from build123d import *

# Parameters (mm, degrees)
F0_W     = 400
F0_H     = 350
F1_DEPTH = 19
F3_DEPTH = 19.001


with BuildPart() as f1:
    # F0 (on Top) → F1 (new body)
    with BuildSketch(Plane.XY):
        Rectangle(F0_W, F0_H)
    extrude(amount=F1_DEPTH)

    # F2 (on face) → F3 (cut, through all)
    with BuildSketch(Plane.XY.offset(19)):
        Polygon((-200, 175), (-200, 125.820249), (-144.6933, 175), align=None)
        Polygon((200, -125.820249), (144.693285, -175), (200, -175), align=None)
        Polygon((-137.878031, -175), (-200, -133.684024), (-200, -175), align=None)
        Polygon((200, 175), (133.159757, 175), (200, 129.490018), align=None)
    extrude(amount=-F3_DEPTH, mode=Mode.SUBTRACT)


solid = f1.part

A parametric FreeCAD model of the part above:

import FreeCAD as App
import Part
import Sketcher

V = App.Vector
Q = App.Units.Quantity

doc = App.newDocument("Part")
params = doc.addObject("Spreadsheet::Sheet", "Params")
for row, (alias, value) in enumerate([
    ("sketch1_width", "400 mm"),
    ("sketch1_height", "350 mm"),
    ("pad1_length", "19 mm"),
], start=1):
    params.set(f"A{row}", alias)
    params.set(f"B{row}", "=" + value)
    params.setAlias(f"B{row}", alias)

body = doc.addObject("PartDesign::Body", "Body")

# Sketch on XY plane
sketch1 = body.newObject("Sketcher::SketchObject", "Sketch")
sketch1.AttachmentSupport = (doc.getObject("XY_Plane"), [""])
sketch1.MapMode = "FlatFace"
sketch1.addGeometry(Part.LineSegment(V(-200, 175, 0), V(-200, -175, 0)), False)
sketch1.addGeometry(Part.LineSegment(V(-200, -175, 0), V(200, -175, 0)), False)
sketch1.addGeometry(Part.LineSegment(V(200, -175, 0), V(200, 175, 0)), False)
sketch1.addGeometry(Part.LineSegment(V(200, 175, 0), V(-200, 175, 0)), False)
sketch1.addConstraint(Sketcher.Constraint("Coincident", 0, 2, 1, 1))
sketch1.addConstraint(Sketcher.Constraint("Coincident", 1, 2, 2, 1))
sketch1.addConstraint(Sketcher.Constraint("Coincident", 2, 2, 3, 1))
sketch1.addConstraint(Sketcher.Constraint("Coincident", 3, 2, 0, 1))
sketch1.addConstraint(Sketcher.Constraint("Vertical", 0))
sketch1.addConstraint(Sketcher.Constraint("Horizontal", 1))
sketch1.addConstraint(Sketcher.Constraint("Vertical", 2))
sketch1.addConstraint(Sketcher.Constraint("Horizontal", 3))
sketch1.addConstraint(Sketcher.Constraint("Symmetric", 0, 2, 2, 2, -1, 1))
sketch1.addConstraint(Sketcher.Constraint("DistanceX", 1, 1, 1, 2, Q("400 mm")))
sketch1.addConstraint(Sketcher.Constraint("DistanceY", 0, 2, 0, 1, Q("350 mm")))
sketch1.setExpression("Constraints[9]", "Params.sketch1_width")
sketch1.setExpression("Constraints[10]", "Params.sketch1_height")
pad1 = body.newObject("PartDesign::Pad", "Pad")
pad1.Profile = sketch1
pad1.setExpression("Length", "Params.pad1_length")

# Sketch on XY plane
sketch2 = body.newObject("Sketcher::SketchObject", "Sketch001")
sketch2.AttachmentSupport = (doc.getObject("XY_Plane"), [""])
sketch2.MapMode = "FlatFace"
sketch2.AttachmentOffset = App.Placement(V(0, 0, 19), App.Rotation())
sketch2.addGeometry(Part.LineSegment(V(-200, 175, 0), V(-200, 126, 0)), False)
sketch2.addGeometry(Part.LineSegment(V(-200, 126, 0), V(-145, 175, 0)), False)
sketch2.addGeometry(Part.LineSegment(V(-145, 175, 0), V(-200, 175, 0)), False)
sketch2.addGeometry(Part.LineSegment(V(200, -126, 0), V(145, -175, 0)), False)
sketch2.addGeometry(Part.LineSegment(V(145, -175, 0), V(200, -175, 0)), False)
sketch2.addGeometry(Part.LineSegment(V(200, -175, 0), V(200, -126, 0)), False)
sketch2.addGeometry(Part.LineSegment(V(-138, -175, 0), V(-200, -134, 0)), False)
sketch2.addGeometry(Part.LineSegment(V(-200, -134, 0), V(-200, -175, 0)), False)
sketch2.addGeometry(Part.LineSegment(V(-200, -175, 0), V(-138, -175, 0)), False)
sketch2.addGeometry(Part.LineSegment(V(200, 175, 0), V(133, 175, 0)), False)
sketch2.addGeometry(Part.LineSegment(V(133, 175, 0), V(200, 129, 0)), False)
sketch2.addGeometry(Part.LineSegment(V(200, 129, 0), V(200, 175, 0)), False)
sketch2.addConstraint(Sketcher.Constraint("Coincident", 0, 2, 1, 1))
sketch2.addConstraint(Sketcher.Constraint("Coincident", 1, 2, 2, 1))
sketch2.addConstraint(Sketcher.Constraint("Coincident", 2, 2, 0, 1))
sketch2.addConstraint(Sketcher.Constraint("Coincident", 3, 2, 4, 1))
sketch2.addConstraint(Sketcher.Constraint("Coincident", 4, 2, 5, 1))
sketch2.addConstraint(Sketcher.Constraint("Coincident", 5, 2, 3, 1))
sketch2.addConstraint(Sketcher.Constraint("Coincident", 6, 2, 7, 1))
sketch2.addConstraint(Sketcher.Constraint("Coincident", 7, 2, 8, 1))
sketch2.addConstraint(Sketcher.Constraint("Coincident", 8, 2, 6, 1))
sketch2.addConstraint(Sketcher.Constraint("Coincident", 9, 2, 10, 1))
sketch2.addConstraint(Sketcher.Constraint("Coincident", 10, 2, 11, 1))
sketch2.addConstraint(Sketcher.Constraint("Coincident", 11, 2, 9, 1))
sketch2.addConstraint(Sketcher.Constraint("Vertical", 0))
sketch2.addConstraint(Sketcher.Constraint("Horizontal", 2))
sketch2.addConstraint(Sketcher.Constraint("Horizontal", 4))
sketch2.addConstraint(Sketcher.Constraint("Vertical", 5))
sketch2.addConstraint(Sketcher.Constraint("Vertical", 7))
sketch2.addConstraint(Sketcher.Constraint("Horizontal", 8))
sketch2.addConstraint(Sketcher.Constraint("Horizontal", 9))
sketch2.addConstraint(Sketcher.Constraint("Vertical", 11))
sketch2.addConstraint(Sketcher.Constraint("Symmetric", 2, 2, 4, 2, -1, 1))
sketch2.addConstraint(Sketcher.Constraint("Symmetric", 7, 2, 11, 2, -1, 1))
sketch2.addConstraint(Sketcher.Constraint("Symmetric", 4, 2, 7, 2, -2))
sketch2.addConstraint(Sketcher.Constraint("Parallel", 1, 3))
sketch2.addConstraint(Sketcher.Constraint("Equal", 0, 5))
sketch2.addConstraint(Sketcher.Constraint("DistanceX", 0, 2, -1, 1, Q("200 mm")))
sketch2.addConstraint(Sketcher.Constraint("DistanceY", -1, 1, 1, 2, Q("175 mm")))
sketch2.addConstraint(Sketcher.Constraint("DistanceX", 2, 2, 2, 1, Q("55.3067 mm")))
sketch2.addConstraint(Sketcher.Constraint("Distance", 10, Q("80.862702 mm")))
sketch2.addConstraint(Sketcher.Constraint("DistanceX", 8, 1, 8, 2, Q("62.121969 mm")))
sketch2.addConstraint(Sketcher.Constraint("DistanceY", 0, 2, 0, 1, Q("49.179751 mm")))
sketch2.addConstraint(Sketcher.Constraint("DistanceX", 9, 2, 9, 1, Q("66.840243 mm")))
sketch2.addConstraint(Sketcher.Constraint("DistanceY", 7, 2, 7, 1, Q("41.315976 mm")))
pocket1 = body.newObject("PartDesign::Pocket", "Pocket")
pocket1.Profile = sketch2
pocket1.Type = "ThroughAll"

doc.recompute()
